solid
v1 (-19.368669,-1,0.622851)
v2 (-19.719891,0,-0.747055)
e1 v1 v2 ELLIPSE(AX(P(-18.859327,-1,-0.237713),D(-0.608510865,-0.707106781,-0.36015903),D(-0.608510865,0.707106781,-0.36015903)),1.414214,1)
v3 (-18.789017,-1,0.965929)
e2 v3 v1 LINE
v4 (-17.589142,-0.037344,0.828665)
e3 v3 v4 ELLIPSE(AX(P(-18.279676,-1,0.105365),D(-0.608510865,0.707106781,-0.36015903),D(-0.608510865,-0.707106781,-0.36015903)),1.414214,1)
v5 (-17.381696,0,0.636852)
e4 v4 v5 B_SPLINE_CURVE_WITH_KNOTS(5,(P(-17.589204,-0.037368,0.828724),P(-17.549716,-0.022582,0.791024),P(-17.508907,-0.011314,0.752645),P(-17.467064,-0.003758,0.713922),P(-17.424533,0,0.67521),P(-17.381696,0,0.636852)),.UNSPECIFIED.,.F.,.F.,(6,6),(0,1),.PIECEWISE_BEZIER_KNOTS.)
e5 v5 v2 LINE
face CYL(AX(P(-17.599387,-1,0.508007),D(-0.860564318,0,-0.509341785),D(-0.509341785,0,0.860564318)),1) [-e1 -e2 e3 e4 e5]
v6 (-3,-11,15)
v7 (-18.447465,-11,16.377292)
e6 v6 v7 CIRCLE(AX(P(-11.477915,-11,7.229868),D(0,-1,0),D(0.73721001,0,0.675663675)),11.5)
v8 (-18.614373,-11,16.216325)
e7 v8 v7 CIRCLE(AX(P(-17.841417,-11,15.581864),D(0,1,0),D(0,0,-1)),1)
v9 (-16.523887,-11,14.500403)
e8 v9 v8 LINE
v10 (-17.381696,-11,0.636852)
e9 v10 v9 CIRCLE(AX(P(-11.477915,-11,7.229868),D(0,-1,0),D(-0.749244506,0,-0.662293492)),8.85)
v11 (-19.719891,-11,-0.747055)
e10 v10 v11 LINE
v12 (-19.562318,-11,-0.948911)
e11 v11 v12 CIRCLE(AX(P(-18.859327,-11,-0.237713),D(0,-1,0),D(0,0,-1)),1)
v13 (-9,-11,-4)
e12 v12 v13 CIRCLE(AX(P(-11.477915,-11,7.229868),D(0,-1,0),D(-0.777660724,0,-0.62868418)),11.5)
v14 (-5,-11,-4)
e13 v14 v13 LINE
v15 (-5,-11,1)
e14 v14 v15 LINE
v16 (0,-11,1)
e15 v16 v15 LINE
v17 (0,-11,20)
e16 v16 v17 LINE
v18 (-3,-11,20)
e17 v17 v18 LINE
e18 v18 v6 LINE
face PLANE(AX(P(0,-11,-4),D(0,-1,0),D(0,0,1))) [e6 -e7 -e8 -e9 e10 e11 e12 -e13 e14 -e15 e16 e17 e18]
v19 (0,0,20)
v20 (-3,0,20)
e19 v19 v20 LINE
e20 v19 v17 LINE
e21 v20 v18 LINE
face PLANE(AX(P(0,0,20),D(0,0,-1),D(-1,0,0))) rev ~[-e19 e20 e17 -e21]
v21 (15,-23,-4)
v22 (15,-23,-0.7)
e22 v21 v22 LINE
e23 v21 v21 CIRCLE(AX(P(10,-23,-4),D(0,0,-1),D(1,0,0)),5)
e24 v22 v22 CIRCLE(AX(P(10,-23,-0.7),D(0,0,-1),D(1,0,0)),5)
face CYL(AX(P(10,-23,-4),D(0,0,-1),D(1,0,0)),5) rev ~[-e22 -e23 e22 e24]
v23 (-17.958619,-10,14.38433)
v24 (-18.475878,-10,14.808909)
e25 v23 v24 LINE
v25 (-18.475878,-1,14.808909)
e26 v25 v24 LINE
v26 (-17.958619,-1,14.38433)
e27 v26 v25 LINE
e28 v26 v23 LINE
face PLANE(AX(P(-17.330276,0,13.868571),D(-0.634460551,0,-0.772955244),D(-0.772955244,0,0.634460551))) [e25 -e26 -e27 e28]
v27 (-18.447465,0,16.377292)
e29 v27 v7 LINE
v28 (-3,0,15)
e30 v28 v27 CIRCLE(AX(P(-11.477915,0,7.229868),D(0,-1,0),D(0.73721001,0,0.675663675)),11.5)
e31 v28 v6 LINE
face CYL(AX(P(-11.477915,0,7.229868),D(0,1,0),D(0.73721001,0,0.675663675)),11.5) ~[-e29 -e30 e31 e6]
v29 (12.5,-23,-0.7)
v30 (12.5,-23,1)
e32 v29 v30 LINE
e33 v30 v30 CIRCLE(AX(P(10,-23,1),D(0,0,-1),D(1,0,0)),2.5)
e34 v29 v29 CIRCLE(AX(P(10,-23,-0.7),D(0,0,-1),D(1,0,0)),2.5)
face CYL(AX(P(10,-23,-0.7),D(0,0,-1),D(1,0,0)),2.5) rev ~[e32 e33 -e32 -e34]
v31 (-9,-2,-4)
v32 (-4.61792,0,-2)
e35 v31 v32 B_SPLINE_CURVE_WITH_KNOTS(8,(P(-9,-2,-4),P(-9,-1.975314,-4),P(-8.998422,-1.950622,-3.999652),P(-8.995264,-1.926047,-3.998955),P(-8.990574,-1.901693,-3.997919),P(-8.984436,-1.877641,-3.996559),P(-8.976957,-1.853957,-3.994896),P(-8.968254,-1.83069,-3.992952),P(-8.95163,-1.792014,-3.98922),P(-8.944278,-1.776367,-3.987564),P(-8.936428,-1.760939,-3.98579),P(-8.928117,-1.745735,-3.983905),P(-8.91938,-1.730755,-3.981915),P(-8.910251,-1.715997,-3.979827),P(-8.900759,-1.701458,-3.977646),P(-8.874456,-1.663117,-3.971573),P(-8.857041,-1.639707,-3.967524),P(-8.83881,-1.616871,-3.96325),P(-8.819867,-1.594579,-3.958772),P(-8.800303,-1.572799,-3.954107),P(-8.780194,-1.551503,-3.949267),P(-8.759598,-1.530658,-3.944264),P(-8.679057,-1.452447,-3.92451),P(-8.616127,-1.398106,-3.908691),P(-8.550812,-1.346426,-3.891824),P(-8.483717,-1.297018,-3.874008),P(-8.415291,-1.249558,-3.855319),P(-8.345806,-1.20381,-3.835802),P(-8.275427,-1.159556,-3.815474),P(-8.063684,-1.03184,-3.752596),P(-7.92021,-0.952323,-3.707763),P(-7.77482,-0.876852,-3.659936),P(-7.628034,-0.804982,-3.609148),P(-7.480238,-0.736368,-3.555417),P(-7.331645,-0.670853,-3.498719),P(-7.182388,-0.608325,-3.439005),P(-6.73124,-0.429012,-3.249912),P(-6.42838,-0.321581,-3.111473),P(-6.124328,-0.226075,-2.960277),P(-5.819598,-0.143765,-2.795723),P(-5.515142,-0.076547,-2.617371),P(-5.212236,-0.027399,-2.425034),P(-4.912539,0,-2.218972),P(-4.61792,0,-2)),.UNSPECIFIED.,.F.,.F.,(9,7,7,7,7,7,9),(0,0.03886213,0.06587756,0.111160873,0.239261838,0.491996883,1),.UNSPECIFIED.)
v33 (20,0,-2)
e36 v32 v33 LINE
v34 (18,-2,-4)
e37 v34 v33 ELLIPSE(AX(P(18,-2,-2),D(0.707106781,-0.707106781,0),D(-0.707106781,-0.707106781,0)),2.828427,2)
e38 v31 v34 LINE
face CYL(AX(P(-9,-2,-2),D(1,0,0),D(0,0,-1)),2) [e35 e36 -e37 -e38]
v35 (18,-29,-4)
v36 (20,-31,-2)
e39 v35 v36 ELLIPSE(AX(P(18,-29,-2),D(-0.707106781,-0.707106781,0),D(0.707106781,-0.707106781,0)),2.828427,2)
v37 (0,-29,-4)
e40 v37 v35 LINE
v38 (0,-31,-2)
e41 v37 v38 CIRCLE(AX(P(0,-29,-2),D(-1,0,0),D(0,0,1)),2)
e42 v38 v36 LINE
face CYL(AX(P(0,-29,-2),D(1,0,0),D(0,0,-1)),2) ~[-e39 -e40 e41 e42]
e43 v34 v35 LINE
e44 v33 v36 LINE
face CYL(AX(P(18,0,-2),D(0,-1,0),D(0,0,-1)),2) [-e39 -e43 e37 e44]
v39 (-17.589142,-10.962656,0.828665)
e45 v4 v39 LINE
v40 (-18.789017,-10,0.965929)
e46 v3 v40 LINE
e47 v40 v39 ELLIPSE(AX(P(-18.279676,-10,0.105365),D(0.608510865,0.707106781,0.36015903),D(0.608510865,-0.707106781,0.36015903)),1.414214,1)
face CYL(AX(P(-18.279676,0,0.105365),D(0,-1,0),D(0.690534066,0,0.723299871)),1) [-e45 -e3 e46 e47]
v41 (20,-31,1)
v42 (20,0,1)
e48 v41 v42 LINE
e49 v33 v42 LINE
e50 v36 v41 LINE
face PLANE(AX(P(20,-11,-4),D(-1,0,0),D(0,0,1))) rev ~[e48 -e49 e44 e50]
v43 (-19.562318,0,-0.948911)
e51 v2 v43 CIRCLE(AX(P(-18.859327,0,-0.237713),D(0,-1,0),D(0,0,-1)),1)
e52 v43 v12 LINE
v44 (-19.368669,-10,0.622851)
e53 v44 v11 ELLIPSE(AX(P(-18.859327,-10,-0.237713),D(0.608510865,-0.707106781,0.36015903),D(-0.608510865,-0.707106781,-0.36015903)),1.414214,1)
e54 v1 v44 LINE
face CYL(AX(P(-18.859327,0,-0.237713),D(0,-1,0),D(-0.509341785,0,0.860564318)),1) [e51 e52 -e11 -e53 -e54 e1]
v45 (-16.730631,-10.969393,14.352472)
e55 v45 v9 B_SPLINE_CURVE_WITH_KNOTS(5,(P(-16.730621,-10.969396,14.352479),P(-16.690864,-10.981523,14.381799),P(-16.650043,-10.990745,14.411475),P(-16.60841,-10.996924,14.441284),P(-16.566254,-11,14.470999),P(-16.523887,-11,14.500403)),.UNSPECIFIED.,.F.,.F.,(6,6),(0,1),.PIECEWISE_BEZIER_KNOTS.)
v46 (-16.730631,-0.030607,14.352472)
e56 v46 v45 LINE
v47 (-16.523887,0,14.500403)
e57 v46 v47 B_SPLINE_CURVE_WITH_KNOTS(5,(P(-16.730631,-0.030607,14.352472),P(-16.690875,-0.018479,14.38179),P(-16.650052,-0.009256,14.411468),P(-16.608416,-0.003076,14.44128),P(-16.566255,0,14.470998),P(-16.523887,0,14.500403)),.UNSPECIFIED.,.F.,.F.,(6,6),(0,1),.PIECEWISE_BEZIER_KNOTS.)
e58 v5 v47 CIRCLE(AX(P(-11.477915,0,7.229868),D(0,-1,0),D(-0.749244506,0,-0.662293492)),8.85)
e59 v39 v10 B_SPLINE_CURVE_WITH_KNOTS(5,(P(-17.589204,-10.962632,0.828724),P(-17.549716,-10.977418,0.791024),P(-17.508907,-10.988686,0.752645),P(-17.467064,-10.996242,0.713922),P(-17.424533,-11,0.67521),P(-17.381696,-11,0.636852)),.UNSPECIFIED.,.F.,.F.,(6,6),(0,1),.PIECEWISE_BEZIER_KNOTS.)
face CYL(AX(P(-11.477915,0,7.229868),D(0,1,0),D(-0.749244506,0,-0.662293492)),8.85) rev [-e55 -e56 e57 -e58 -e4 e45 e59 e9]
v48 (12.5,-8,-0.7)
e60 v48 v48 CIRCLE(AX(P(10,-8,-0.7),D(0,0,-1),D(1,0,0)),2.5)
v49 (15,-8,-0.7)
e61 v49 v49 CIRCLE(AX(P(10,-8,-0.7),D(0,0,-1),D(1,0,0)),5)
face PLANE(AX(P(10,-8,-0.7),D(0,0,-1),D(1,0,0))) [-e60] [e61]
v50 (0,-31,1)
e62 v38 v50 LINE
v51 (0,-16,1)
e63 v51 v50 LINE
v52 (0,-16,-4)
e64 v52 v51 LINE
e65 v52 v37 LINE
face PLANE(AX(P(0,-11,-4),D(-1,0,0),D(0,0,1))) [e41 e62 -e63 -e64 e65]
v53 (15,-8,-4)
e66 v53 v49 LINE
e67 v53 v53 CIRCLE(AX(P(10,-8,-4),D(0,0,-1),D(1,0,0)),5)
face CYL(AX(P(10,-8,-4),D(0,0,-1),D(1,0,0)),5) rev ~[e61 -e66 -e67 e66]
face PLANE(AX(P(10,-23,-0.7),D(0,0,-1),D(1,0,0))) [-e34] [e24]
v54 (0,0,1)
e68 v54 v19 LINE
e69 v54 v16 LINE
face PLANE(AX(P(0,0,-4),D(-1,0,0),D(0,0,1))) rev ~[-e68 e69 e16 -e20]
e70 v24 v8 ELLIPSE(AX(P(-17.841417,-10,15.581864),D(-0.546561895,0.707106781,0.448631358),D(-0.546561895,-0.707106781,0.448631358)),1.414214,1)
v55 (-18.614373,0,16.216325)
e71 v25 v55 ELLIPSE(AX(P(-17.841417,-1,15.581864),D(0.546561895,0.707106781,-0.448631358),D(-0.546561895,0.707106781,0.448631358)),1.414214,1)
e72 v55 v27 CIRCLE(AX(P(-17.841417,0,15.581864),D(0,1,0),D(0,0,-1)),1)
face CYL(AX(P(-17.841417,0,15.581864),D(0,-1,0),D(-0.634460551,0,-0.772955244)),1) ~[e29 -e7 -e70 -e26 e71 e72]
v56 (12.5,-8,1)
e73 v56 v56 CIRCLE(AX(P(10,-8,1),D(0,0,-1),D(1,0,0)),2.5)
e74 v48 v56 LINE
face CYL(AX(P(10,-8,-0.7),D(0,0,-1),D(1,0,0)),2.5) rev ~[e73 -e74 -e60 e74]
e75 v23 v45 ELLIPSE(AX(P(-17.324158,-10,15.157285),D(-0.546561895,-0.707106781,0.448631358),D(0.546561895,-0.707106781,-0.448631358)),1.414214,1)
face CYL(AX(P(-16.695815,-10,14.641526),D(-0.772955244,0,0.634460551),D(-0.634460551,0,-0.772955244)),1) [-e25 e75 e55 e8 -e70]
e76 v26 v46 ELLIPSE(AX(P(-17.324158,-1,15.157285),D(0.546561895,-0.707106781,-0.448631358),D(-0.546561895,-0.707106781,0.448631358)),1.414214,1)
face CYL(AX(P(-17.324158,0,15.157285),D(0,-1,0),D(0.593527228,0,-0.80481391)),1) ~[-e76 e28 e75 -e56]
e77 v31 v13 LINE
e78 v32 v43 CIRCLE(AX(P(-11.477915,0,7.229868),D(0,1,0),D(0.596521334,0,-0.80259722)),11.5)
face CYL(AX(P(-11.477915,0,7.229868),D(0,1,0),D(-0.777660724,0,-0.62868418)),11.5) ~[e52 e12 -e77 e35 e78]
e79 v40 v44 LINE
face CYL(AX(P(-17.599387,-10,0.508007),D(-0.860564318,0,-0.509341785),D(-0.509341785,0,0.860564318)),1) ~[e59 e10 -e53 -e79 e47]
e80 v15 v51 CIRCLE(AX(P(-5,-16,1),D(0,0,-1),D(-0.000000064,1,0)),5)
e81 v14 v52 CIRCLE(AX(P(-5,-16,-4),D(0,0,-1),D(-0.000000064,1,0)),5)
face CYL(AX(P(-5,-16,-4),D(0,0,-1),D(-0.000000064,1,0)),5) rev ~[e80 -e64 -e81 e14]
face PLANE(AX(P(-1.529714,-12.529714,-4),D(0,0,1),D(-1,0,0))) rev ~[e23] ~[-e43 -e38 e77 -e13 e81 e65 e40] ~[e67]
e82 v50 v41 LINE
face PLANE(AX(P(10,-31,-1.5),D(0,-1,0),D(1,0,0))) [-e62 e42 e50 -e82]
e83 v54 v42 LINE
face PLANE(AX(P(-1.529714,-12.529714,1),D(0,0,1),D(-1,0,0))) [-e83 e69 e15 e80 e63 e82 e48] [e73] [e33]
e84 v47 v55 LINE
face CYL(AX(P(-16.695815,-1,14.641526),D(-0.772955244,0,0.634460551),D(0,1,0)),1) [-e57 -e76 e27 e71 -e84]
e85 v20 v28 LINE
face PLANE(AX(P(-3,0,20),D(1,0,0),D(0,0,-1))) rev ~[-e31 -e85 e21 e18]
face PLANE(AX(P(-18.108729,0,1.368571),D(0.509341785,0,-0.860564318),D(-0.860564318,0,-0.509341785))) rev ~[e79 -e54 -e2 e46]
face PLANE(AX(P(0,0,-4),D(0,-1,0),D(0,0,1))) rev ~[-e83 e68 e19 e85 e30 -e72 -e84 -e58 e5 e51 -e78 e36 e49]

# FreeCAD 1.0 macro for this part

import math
import FreeCAD as App
import Part
import Sketcher
Q = App.Units.Quantity


def edges_at(feature, points):
    """Names of the edges that pass closest to the given points."""
    edges = feature.Shape.Edges
    near = lambda p: min(range(len(edges)), key=lambda i: edges[i].distToShape(Part.Vertex(*p))[0])
    return sorted({f"Edge{near(p) + 1}" for p in points})

doc = App.newDocument("Part")
body = doc.addObject("PartDesign::Body", "Body")

# Sketch on XZ plane
sketch1 = doc.addObject("Sketcher::SketchObject", "Sketch")
body.addObject(sketch1)
sketch1.AttachmentSupport = (doc.XZ_Plane, [""])
sketch1.MapMode = "FlatFace"
sketch1.addGeometry(Part.LineSegment(App.Vector(0, 20, 0), App.Vector(-3, 20, 0)), False)
sketch1.addGeometry(Part.LineSegment(App.Vector(-3, 20, 0), App.Vector(-3, 15, 0)), False)
sketch1.addGeometry(Part.ArcOfCircle(Part.Circle(App.Vector(-11.5, 7.2, 0), App.Vector(0, 0, 1), 11.5), math.radians(43), math.radians(134)), False)
sketch1.addGeometry(Part.LineSegment(App.Vector(-19.4, 15.6, 0), App.Vector(-17.3, 13.9, 0)), False)
sketch1.addGeometry(Part.ArcOfCircle(Part.Circle(App.Vector(-11.5, 7.2, 0), App.Vector(0, 0, 1), 8.8), math.radians(-139), math.radians(131)), False)
sketch1.addGeometry(Part.LineSegment(App.Vector(-18.1, 1.4, 0), App.Vector(-20.4, 0, 0)), False)
sketch1.addGeometry(Part.ArcOfCircle(Part.Circle(App.Vector(-11.5, 7.2, 0), App.Vector(0, 0, 1), 11.5), math.radians(-141), math.radians(-78)), False)
sketch1.addGeometry(Part.LineSegment(App.Vector(-9, -4, 0), App.Vector(0, -4, 0)), False)
sketch1.addGeometry(Part.LineSegment(App.Vector(0, -4, 0), App.Vector(0, 20, 0)), False)
sketch1.addConstraint(Sketcher.Constraint("Coincident", 0, 2, 1, 1))
sketch1.addConstraint(Sketcher.Constraint("Coincident", 1, 2, 2, 1))
sketch1.addConstraint(Sketcher.Constraint("Coincident", 2, 2, 3, 1))
sketch1.addConstraint(Sketcher.Constraint("Coincident", 3, 2, 4, 2))
sketch1.addConstraint(Sketcher.Constraint("Coincident", 4, 1, 5, 1))
sketch1.addConstraint(Sketcher.Constraint("Coincident", 5, 2, 6, 1))
sketch1.addConstraint(Sketcher.Constraint("Coincident", 6, 2, 7, 1))
sketch1.addConstraint(Sketcher.Constraint("Coincident", 7, 2, 8, 1))
sketch1.addConstraint(Sketcher.Constraint("Coincident", 8, 2, 0, 1))
sketch1.addConstraint(Sketcher.Constraint("Horizontal", 0))
sketch1.addConstraint(Sketcher.Constraint("Vertical", 1))
sketch1.addConstraint(Sketcher.Constraint("Horizontal", 7))
sketch1.addConstraint(Sketcher.Constraint("Vertical", 8))
sketch1.addConstraint(Sketcher.Constraint("Coincident", 4, 3, 2, 3))
sketch1.addConstraint(Sketcher.Constraint("Coincident", 6, 3, 2, 3))
sketch1.addConstraint(Sketcher.Constraint("Equal", 2, 6))
sketch1.addConstraint(Sketcher.Constraint("PointOnObject", 5, 2, -1))
sketch1.addConstraint(Sketcher.Constraint("PointOnObject", 7, 2, -2))
sketch1.addConstraint(Sketcher.Constraint("Radius", 2, 11.5))
sketch1.addConstraint(Sketcher.Constraint("DistanceX", 0, 2, 0, 1, 3.0))
sketch1.addConstraint(Sketcher.Constraint("DistanceX", 7, 1, 7, 2, 9.0))
sketch1.addConstraint(Sketcher.Constraint("DistanceY", 1, 2, 1, 1, 5.0))
sketch1.addConstraint(Sketcher.Constraint("DistanceY", 8, 1, 8, 2, 24.0))
sketch1.addConstraint(Sketcher.Constraint("Radius", 4, 8.85))
sketch1.addConstraint(Sketcher.Constraint("DistanceY", -1, 1, 0, 2, 20.0))
sketch1.addConstraint(Sketcher.Constraint("Angle", 3, Q("-39.379986 deg")))
sketch1.addConstraint(Sketcher.Constraint("Angle", 5, Q("-149.380004 deg")))
sketch1.addConstraint(Sketcher.Constraint("DistanceY", 4, 1, 3, 2, 12.5))
pad1 = doc.addObject("PartDesign::Pad", "Pad")
body.addObject(pad1)
pad1.Profile = sketch1
pad1.Length = 11
doc.recompute()

fillet = doc.addObject("PartDesign::Fillet", "Fillet")
body.addObject(fillet)
fillet.Base = (pad1, edges_at(pad1, [
    (-18.109, -5.5, 1.369),
    (-20.421, -5.5, 0),
    (-19.265, 0, 0.684),
    (-19.265, -11, 0.684),
]))
fillet.Radius = 1
doc.recompute()

fillet2 = doc.addObject("PartDesign::Fillet", "Fillet001")
body.addObject(fillet2)
fillet2.Base = (fillet, edges_at(fillet, [
    (-17.33, -5.5, 13.869),
    (-19.399, -5.5, 15.567),
    (-18.365, 0, 14.718),
    (-18.365, -11, 14.718),
]))
fillet2.Radius = 1

# Sketch on YZ plane
sketch2 = doc.addObject("Sketcher::SketchObject", "Sketch001")
body.addObject(sketch2)
sketch2.AttachmentSupport = (doc.YZ_Plane, [""])
sketch2.MapMode = "FlatFace"
sketch2.addGeometry(Part.LineSegment(App.Vector(-11, -4, 0), App.Vector(0, -4, 0)), False)
sketch2.addGeometry(Part.LineSegment(App.Vector(0, -4, 0), App.Vector(0, 1, 0)), False)
sketch2.addGeometry(Part.LineSegment(App.Vector(0, 1, 0), App.Vector(-11, 1, 0)), False)
sketch2.addGeometry(Part.LineSegment(App.Vector(-11, 1, 0), App.Vector(-11, -4, 0)), False)
sketch2.addConstraint(Sketcher.Constraint("Coincident", 0, 2, 1, 1))
sketch2.addConstraint(Sketcher.Constraint("Coincident", 1, 2, 2, 1))
sketch2.addConstraint(Sketcher.Constraint("Coincident", 2, 2, 3, 1))
sketch2.addConstraint(Sketcher.Constraint("Coincident", 3, 2, 0, 1))
sketch2.addConstraint(Sketcher.Constraint("Horizontal", 0))
sketch2.addConstraint(Sketcher.Constraint("Vertical", 1))
sketch2.addConstraint(Sketcher.Constraint("Horizontal", 2))
sketch2.addConstraint(Sketcher.Constraint("Vertical", 3))
sketch2.addConstraint(Sketcher.Constraint("PointOnObject", 0, 2, -2))
sketch2.addConstraint(Sketcher.Constraint("DistanceX", 0, 1, 0, 2, 11.0))
sketch2.addConstraint(Sketcher.Constraint("DistanceY", 1, 1, 1, 2, 5.0))
sketch2.addConstraint(Sketcher.Constraint("DistanceY", 0, 2, -1, 1, 4.0))
pad2 = doc.addObject("PartDesign::Pad", "Pad001")
body.addObject(pad2)
pad2.Profile = sketch2
pad2.Length = 20

# Sketch on XZ plane
sketch3 = doc.addObject("Sketcher::SketchObject", "Sketch002")
body.addObject(sketch3)
sketch3.AttachmentSupport = (doc.XZ_Plane, [""])
sketch3.MapMode = "FlatFace"
sketch3.AttachmentOffset = App.Placement(App.Vector(0, 0, 11), App.Rotation())
sketch3.addGeometry(Part.LineSegment(App.Vector(0, 1, 0), App.Vector(0, -4, 0)), False)
sketch3.addGeometry(Part.LineSegment(App.Vector(0, -4, 0), App.Vector(20, -4, 0)), False)
sketch3.addGeometry(Part.LineSegment(App.Vector(20, -4, 0), App.Vector(20, 1, 0)), False)
sketch3.addGeometry(Part.LineSegment(App.Vector(20, 1, 0), App.Vector(0, 1, 0)), False)
sketch3.addConstraint(Sketcher.Constraint("Coincident", 0, 2, 1, 1))
sketch3.addConstraint(Sketcher.Constraint("Coincident", 1, 2, 2, 1))
sketch3.addConstraint(Sketcher.Constraint("Coincident", 2, 2, 3, 1))
sketch3.addConstraint(Sketcher.Constraint("Coincident", 3, 2, 0, 1))
sketch3.addConstraint(Sketcher.Constraint("Vertical", 0))
sketch3.addConstraint(Sketcher.Constraint("Horizontal", 1))
sketch3.addConstraint(Sketcher.Constraint("Vertical", 2))
sketch3.addConstraint(Sketcher.Constraint("Horizontal", 3))
sketch3.addConstraint(Sketcher.Constraint("PointOnObject", 0, 2, -2))
sketch3.addConstraint(Sketcher.Constraint("DistanceX", 1, 1, 1, 2, 20.0))
sketch3.addConstraint(Sketcher.Constraint("DistanceY", 0, 2, 0, 1, 5.0))
sketch3.addConstraint(Sketcher.Constraint("DistanceY", 0, 2, -1, 1, 4.0))
pad3 = doc.addObject("PartDesign::Pad", "Pad002")
body.addObject(pad3)
pad3.Profile = sketch3
pad3.Length = 20

# Sketch on XY plane
sketch4 = doc.addObject("Sketcher::SketchObject", "Sketch003")
body.addObject(sketch4)
sketch4.AttachmentSupport = (doc.XY_Plane, [""])
sketch4.MapMode = "FlatFace"
sketch4.AttachmentOffset = App.Placement(App.Vector(0, 0, -4), App.Rotation())
sketch4.addGeometry(Part.Circle(App.Vector(10, -23, 0), App.Vector(0, 0, 1), 5), False)
sketch4.addGeometry(Part.Circle(App.Vector(10, -8, 0), App.Vector(0, 0, 1), 5), False)
sketch4.addConstraint(Sketcher.Constraint("Equal", 0, 1))
sketch4.addConstraint(Sketcher.Constraint("Vertical", 0, 3, 1, 3))
sketch4.addConstraint(Sketcher.Constraint("Diameter", 0, 10.0))
sketch4.addConstraint(Sketcher.Constraint("DistanceX", -1, 1, 0, 3, 10.0))
sketch4.addConstraint(Sketcher.Constraint("DistanceY", 0, 3, -1, 1, 23.0))
sketch4.addConstraint(Sketcher.Constraint("DistanceY", 1, 3, -1, 1, 8.0))
pocket1 = doc.addObject("PartDesign::Pocket", "Pocket")
body.addObject(pocket1)
pocket1.Profile = sketch4
pocket1.Length = 3.3
pocket1.Reversed = True

# Sketch on XY plane
sketch5 = doc.addObject("Sketcher::SketchObject", "Sketch004")
body.addObject(sketch5)
sketch5.AttachmentSupport = (doc.XY_Plane, [""])
sketch5.MapMode = "FlatFace"
sketch5.AttachmentOffset = App.Placement(App.Vector(0, 0, -4), App.Rotation())
sketch5.addGeometry(Part.ArcOfCircle(Part.Circle(App.Vector(-5, -16, 0), App.Vector(0, 0, 1), 5), math.radians(0), math.radians(90)), False)
sketch5.addGeometry(Part.LineSegment(App.Vector(-5, -11, 0), App.Vector(0, -11, 0)), False)
sketch5.addGeometry(Part.LineSegment(App.Vector(0, -11, 0), App.Vector(0, -16, 0)), False)
sketch5.addConstraint(Sketcher.Constraint("Tangent", 0, 2, 1, 1))
sketch5.addConstraint(Sketcher.Constraint("Coincident", 1, 2, 2, 1))
sketch5.addConstraint(Sketcher.Constraint("Tangent", 2, 2, 0, 1))
sketch5.addConstraint(Sketcher.Constraint("Horizontal", 1))
sketch5.addConstraint(Sketcher.Constraint("Vertical", 2))
sketch5.addConstraint(Sketcher.Constraint("PointOnObject", 1, 2, -2))
sketch5.addConstraint(Sketcher.Constraint("Radius", 0, 5.0))
sketch5.addConstraint(Sketcher.Constraint("DistanceY", 0, 3, -1, 1, 16.0))
pad4 = doc.addObject("PartDesign::Pad", "Pad003")
body.addObject(pad4)
pad4.Profile = sketch5
pad4.Length = 5

# Sketch on XY plane
sketch6 = doc.addObject("Sketcher::SketchObject", "Sketch005")
body.addObject(sketch6)
sketch6.AttachmentSupport = (doc.XY_Plane, [""])
sketch6.MapMode = "FlatFace"
sketch6.AttachmentOffset = App.Placement(App.Vector(0, 0, -0.7), App.Rotation())
sketch6.addGeometry(Part.Circle(App.Vector(10, -23, 0), App.Vector(0, 0, 1), 2.5), False)
sketch6.addGeometry(Part.Circle(App.Vector(10, -8, 0), App.Vector(0, 0, 1), 2.5), False)
sketch6.addConstraint(Sketcher.Constraint("Equal", 0, 1))
sketch6.addConstraint(Sketcher.Constraint("Vertical", 0, 3, 1, 3))
sketch6.addConstraint(Sketcher.Constraint("Diameter", 0, 5.0))
sketch6.addConstraint(Sketcher.Constraint("DistanceX", -1, 1, 0, 3, 10.0))
sketch6.addConstraint(Sketcher.Constraint("DistanceY", 0, 3, -1, 1, 23.0))
sketch6.addConstraint(Sketcher.Constraint("DistanceY", 1, 3, -1, 1, 8.0))
pocket2 = doc.addObject("PartDesign::Pocket", "Pocket001")
body.addObject(pocket2)
pocket2.Profile = sketch6
pocket2.Length = 5
pocket2.Reversed = True
doc.recompute()

fillet3 = doc.addObject("PartDesign::Fillet", "Fillet002")
body.addObject(fillet3)
fillet3.Base = (pocket2, edges_at(pocket2, [
    (10, -31, -4),
    (20, -15.5, -4),
    (5.5, 0, -4),
    (20, -15.5, -4),
]))
fillet3.Radius = 2

doc.recompute()
